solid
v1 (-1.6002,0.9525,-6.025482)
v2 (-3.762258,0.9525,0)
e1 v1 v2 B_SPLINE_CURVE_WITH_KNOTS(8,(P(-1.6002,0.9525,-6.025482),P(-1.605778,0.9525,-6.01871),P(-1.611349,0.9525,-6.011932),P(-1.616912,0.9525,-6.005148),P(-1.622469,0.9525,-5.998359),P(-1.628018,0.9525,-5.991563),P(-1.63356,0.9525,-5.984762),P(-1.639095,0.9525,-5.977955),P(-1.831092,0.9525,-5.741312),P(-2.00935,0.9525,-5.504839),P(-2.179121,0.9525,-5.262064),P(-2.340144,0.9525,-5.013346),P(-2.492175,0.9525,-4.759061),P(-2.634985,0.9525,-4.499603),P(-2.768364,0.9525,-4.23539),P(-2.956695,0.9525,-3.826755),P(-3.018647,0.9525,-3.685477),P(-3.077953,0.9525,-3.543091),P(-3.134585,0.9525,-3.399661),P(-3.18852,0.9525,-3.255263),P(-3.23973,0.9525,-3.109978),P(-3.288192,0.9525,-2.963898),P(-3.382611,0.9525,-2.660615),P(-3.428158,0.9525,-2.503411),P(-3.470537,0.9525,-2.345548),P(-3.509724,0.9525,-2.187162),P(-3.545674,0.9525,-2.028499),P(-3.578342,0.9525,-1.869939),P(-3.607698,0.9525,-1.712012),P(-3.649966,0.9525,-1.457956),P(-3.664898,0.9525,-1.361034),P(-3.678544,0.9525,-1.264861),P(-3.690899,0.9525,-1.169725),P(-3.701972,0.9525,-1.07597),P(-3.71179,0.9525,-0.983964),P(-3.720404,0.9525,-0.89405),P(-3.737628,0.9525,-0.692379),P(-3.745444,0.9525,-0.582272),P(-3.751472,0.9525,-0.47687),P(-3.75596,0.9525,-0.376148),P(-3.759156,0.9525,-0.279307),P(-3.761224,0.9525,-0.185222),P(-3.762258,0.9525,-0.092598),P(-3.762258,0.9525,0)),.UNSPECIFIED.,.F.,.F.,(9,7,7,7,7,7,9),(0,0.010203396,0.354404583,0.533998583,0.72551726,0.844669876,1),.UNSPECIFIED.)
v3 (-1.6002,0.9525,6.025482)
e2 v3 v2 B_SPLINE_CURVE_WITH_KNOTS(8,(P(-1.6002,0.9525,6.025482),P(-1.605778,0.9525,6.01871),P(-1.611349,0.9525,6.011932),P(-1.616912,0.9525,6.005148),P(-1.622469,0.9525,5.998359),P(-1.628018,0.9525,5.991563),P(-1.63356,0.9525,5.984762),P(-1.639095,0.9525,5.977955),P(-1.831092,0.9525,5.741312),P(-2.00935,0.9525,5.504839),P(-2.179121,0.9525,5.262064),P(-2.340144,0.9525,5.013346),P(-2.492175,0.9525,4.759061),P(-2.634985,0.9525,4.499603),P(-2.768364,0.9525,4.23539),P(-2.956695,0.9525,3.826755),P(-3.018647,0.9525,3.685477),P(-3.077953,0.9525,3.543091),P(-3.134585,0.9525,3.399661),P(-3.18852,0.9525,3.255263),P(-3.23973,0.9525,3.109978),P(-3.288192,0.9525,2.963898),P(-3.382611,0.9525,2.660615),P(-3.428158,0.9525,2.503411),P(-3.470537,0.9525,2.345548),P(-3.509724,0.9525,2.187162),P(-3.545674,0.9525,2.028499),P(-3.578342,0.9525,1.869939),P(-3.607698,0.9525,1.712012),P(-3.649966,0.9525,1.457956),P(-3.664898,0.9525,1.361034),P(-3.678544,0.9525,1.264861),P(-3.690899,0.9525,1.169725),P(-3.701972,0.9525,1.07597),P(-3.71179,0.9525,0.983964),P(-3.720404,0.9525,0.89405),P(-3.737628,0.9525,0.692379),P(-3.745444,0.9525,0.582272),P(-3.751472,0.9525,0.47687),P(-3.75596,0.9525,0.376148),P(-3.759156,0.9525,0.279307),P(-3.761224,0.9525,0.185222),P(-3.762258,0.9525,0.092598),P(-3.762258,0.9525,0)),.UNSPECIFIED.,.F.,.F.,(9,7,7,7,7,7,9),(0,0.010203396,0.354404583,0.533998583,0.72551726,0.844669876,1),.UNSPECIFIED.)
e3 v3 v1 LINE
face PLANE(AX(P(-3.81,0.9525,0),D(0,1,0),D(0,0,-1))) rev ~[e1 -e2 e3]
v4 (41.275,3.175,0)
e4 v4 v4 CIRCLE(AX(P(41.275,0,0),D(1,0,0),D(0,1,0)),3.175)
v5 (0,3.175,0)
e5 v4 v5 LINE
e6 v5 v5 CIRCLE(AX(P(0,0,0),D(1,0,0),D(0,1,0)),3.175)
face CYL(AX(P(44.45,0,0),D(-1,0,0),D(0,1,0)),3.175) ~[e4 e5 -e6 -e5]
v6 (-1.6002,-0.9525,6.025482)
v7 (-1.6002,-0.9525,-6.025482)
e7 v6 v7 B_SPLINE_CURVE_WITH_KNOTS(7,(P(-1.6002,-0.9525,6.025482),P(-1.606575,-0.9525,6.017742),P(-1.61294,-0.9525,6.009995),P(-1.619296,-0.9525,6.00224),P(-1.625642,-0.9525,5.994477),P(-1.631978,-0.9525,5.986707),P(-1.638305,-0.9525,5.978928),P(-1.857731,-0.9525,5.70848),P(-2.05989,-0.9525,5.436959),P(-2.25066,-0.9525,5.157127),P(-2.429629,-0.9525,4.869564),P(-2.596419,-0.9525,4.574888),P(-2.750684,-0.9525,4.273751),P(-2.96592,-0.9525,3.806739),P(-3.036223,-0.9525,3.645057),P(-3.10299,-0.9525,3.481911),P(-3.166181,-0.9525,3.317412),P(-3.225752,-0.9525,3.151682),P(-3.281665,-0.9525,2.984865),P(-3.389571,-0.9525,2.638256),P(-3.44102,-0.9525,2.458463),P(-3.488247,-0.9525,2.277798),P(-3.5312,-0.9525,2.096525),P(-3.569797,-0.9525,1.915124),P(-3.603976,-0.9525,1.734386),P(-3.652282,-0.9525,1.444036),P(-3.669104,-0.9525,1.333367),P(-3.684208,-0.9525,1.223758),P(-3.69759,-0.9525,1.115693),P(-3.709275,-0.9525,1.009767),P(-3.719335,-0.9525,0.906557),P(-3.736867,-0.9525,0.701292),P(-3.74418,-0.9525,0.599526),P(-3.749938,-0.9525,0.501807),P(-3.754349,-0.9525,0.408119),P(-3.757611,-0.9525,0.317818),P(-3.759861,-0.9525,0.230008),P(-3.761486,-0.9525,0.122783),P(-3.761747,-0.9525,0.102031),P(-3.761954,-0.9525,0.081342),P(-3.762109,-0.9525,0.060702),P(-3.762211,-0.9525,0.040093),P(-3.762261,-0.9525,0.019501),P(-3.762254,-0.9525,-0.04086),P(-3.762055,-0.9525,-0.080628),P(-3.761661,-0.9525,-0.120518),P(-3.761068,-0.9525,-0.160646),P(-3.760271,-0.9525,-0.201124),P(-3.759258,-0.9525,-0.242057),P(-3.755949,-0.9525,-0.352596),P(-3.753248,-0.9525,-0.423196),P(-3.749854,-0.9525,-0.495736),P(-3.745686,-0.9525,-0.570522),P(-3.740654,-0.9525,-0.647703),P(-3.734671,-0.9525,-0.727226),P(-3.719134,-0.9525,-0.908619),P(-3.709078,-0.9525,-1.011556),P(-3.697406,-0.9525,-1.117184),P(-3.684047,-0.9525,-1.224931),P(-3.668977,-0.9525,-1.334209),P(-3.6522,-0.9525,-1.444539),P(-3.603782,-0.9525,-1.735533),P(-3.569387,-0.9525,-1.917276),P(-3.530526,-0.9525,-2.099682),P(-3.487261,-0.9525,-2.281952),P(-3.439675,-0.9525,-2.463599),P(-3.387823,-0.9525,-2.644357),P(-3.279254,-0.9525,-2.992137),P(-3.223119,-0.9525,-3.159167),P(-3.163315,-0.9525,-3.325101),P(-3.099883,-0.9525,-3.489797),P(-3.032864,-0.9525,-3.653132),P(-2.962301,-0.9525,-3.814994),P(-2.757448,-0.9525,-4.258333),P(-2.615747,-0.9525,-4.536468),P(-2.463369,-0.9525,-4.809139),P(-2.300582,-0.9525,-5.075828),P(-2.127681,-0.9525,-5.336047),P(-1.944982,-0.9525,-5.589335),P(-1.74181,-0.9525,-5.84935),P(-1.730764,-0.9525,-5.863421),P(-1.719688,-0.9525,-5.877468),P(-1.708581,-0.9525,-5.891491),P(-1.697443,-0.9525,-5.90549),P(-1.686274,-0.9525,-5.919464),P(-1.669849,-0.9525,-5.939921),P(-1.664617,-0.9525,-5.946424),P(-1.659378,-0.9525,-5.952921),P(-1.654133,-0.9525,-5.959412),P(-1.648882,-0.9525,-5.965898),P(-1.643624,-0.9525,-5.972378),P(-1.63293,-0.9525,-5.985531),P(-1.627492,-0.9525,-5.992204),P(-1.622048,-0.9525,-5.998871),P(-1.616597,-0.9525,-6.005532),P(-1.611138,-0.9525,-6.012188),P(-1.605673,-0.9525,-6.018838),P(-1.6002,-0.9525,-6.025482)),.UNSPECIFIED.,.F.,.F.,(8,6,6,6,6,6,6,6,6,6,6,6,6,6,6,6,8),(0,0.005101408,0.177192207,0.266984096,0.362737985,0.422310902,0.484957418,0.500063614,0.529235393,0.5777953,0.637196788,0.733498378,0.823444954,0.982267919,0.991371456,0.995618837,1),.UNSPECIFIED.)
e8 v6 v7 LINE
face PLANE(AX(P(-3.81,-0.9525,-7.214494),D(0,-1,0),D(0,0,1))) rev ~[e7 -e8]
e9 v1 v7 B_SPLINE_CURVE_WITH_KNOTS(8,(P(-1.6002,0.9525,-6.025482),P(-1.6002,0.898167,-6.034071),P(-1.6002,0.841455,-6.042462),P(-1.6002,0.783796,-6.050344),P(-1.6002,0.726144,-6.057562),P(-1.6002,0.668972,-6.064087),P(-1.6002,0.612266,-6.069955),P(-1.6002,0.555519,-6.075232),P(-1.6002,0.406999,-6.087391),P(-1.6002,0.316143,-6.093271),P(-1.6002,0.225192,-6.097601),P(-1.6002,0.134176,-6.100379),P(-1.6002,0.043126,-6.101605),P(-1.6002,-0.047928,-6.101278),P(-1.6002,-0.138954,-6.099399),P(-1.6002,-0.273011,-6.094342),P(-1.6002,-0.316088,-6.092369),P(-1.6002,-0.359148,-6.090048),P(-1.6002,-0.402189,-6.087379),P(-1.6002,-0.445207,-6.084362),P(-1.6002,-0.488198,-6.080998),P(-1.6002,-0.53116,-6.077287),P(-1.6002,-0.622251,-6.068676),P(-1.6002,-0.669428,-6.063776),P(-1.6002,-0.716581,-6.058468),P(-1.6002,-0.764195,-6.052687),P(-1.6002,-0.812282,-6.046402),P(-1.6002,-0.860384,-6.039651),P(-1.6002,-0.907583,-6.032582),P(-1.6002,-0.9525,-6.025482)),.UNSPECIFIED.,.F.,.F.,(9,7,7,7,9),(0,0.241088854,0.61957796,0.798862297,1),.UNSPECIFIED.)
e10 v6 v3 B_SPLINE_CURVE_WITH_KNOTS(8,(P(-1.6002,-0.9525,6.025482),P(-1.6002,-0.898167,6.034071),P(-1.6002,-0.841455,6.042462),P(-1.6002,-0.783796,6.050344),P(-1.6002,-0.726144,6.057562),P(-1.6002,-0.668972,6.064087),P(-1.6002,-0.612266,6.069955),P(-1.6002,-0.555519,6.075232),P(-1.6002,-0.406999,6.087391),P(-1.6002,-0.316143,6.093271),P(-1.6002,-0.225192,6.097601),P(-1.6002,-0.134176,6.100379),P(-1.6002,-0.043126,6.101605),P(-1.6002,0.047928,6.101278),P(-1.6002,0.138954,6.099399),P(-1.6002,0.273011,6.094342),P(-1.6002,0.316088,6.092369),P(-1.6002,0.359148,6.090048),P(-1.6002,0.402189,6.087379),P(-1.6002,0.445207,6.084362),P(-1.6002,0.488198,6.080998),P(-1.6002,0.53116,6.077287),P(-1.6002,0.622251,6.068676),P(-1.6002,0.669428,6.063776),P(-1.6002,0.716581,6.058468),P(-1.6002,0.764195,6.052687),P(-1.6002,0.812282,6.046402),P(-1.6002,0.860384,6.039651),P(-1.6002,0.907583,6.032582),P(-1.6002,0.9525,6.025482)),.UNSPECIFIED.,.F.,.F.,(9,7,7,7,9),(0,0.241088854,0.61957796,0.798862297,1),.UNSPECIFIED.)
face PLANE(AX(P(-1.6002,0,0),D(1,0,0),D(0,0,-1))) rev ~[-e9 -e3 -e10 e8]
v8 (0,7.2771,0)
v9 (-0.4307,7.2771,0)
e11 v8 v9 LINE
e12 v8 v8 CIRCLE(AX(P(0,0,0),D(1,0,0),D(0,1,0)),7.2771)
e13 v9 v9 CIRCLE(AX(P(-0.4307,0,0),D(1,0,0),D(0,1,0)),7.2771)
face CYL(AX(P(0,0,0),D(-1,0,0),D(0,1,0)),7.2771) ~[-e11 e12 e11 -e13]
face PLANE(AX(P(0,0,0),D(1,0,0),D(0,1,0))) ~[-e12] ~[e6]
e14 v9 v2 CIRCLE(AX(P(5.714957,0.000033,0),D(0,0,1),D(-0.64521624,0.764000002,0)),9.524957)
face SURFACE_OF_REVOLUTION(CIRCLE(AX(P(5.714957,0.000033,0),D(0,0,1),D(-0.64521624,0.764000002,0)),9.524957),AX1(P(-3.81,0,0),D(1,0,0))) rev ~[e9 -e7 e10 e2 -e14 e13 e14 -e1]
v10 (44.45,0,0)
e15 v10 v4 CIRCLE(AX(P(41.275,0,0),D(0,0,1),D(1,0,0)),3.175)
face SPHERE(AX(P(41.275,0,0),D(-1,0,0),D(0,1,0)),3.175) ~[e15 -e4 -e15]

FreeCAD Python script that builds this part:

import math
import FreeCAD as App
import Part
import Sketcher
Q = App.Units.Quantity

doc = App.newDocument("Part")
body = doc.addObject("PartDesign::Body", "Body")

sketch1 = body.newObject("Sketcher::SketchObject", "Sketch")
sketch1.AttachmentSupport = (doc.getObject("XY_Plane"), [""])
sketch1.MapMode = "FlatFace"
sketch1.addGeometry([
    Part.ArcOfCircle(Part.Circle(App.Vector(5.715, 0, 0), App.Vector(0, 0, 1), 9.52501), math.radians(130.181961), math.radians(180)),
    Part.LineSegment(App.Vector(-3.81, 0, 0), App.Vector(44.45, 0, 0)),
    Part.LineSegment(App.Vector(44.45, 0, 0), App.Vector(44.45, 3.175, 0)),
    Part.LineSegment(App.Vector(44.45, 3.175, 0), App.Vector(0, 3.175, 0)),
    Part.LineSegment(App.Vector(0, 3.175, 0), App.Vector(0, 7.2771, 0)),
    Part.LineSegment(App.Vector(0, 7.2771, 0), App.Vector(-0.4307, 7.2771, 0)),
], False)
sketch1.addConstraint([
    Sketcher.Constraint("Coincident", 0, 2, 1, 1),
    Sketcher.Constraint("Coincident", 1, 2, 2, 1),
    Sketcher.Constraint("Coincident", 2, 2, 3, 1),
    Sketcher.Constraint("Coincident", 3, 2, 4, 1),
    Sketcher.Constraint("Coincident", 4, 2, 5, 1),
    Sketcher.Constraint("Coincident", 5, 2, 0, 1),
    Sketcher.Constraint("Horizontal", 1),
    Sketcher.Constraint("Vertical", 2),
    Sketcher.Constraint("Horizontal", 3),
    Sketcher.Constraint("Vertical", 4),
    Sketcher.Constraint("Horizontal", 5),
    Sketcher.Constraint("PointOnObject", 0, 3, -1),
    Sketcher.Constraint("PointOnObject", 0, 2, -1),
    Sketcher.Constraint("PointOnObject", 3, 2, -2),
    Sketcher.Constraint("Radius", 0, Q("0.375 in")),
    Sketcher.Constraint("DistanceX", 3, 2, 3, 1, Q("1.75 in")),
    Sketcher.Constraint("DistanceX", 0, 2, -1, 1, Q("0.15 in")),
    Sketcher.Constraint("DistanceY", 2, 1, 2, 2, Q("0.125 in")),
    Sketcher.Constraint("DistanceY", 4, 1, 4, 2, Q("0.1615 in")),
])
revolution = body.newObject("PartDesign::Revolution", "Revolution")
revolution.Profile = sketch1
revolution.ReferenceAxis = (sketch1, ["H_Axis"])
revolution.Angle = 360

sketch2 = body.newObject("Sketcher::SketchObject", "Sketch001")
sketch2.AttachmentSupport = (doc.getObject("YZ_Plane"), [""])
sketch2.MapMode = "FlatFace"
sketch2.AttachmentOffset = App.Placement(App.Vector(0, 0, -0.15 * 25.4), App.Rotation())
sketch2.addGeometry([
    Part.LineSegment(App.Vector(0.9525, 7.2771, 0), App.Vector(-0.9525, 7.2771, 0)),
    Part.LineSegment(App.Vector(-0.9525, 7.2771, 0), App.Vector(-0.9525, -7.2771, 0)),
    Part.LineSegment(App.Vector(-0.9525, -7.2771, 0), App.Vector(0.9525, -7.2771, 0)),
    Part.LineSegment(App.Vector(0.9525, -7.2771, 0), App.Vector(0.9525, 7.2771, 0)),
], False)
sketch2.addConstraint([
    Sketcher.Constraint("Coincident", 0, 2, 1, 1),
    Sketcher.Constraint("Coincident", 1, 2, 2, 1),
    Sketcher.Constraint("Coincident", 2, 2, 3, 1),
    Sketcher.Constraint("Coincident", 3, 2, 0, 1),
    Sketcher.Constraint("Horizontal", 0),
    Sketcher.Constraint("Vertical", 1),
    Sketcher.Constraint("Horizontal", 2),
    Sketcher.Constraint("Vertical", 3),
    Sketcher.Constraint("Symmetric", 0, 2, 2, 2, -1, 1),
    Sketcher.Constraint("DistanceX", 0, 2, 0, 1, Q("0.075 in")),
    Sketcher.Constraint("DistanceY", 1, 2, 1, 1, Q("0.573 in")),
])
pocket1 = body.newObject("PartDesign::Pocket", "Pocket")
pocket1.Profile = sketch2
pocket1.Length = Q("0.087 in")
pocket1.Reversed = True

sketch3 = body.newObject("Sketcher::SketchObject", "Sketch002")
sketch3.AttachmentSupport = (doc.getObject("XY_Plane"), [""])
sketch3.MapMode = "FlatFace"
sketch3.addGeometry([
    Part.ArcOfCircle(Part.Circle(App.Vector(41.275, 0, 0), App.Vector(0, 0, 1), 3.175), math.radians(0), math.radians(90)),
    Part.LineSegment(App.Vector(44.45, 0, 0), App.Vector(44.45, 3.175, 0)),
    Part.LineSegment(App.Vector(44.45, 3.175, 0), App.Vector(41.275, 3.175, 0)),
], False)
sketch3.addConstraint([
    Sketcher.Constraint("Tangent", 0, 1, 1, 1),
    Sketcher.Constraint("Coincident", 1, 2, 2, 1),
    Sketcher.Constraint("Tangent", 2, 2, 0, 2),
    Sketcher.Constraint("Vertical", 1),
    Sketcher.Constraint("Horizontal", 2),
    Sketcher.Constraint("PointOnObject", 0, 3, -1),
    Sketcher.Constraint("Radius", 0, Q("0.125 in")),
    Sketcher.Constraint("DistanceX", -1, 1, 0, 1, Q("1.75 in")),
])
groove = body.newObject("PartDesign::Groove", "Groove")
groove.Profile = sketch3
groove.ReferenceAxis = (sketch3, ["H_Axis"])
groove.Angle = 360

doc.recompute()
